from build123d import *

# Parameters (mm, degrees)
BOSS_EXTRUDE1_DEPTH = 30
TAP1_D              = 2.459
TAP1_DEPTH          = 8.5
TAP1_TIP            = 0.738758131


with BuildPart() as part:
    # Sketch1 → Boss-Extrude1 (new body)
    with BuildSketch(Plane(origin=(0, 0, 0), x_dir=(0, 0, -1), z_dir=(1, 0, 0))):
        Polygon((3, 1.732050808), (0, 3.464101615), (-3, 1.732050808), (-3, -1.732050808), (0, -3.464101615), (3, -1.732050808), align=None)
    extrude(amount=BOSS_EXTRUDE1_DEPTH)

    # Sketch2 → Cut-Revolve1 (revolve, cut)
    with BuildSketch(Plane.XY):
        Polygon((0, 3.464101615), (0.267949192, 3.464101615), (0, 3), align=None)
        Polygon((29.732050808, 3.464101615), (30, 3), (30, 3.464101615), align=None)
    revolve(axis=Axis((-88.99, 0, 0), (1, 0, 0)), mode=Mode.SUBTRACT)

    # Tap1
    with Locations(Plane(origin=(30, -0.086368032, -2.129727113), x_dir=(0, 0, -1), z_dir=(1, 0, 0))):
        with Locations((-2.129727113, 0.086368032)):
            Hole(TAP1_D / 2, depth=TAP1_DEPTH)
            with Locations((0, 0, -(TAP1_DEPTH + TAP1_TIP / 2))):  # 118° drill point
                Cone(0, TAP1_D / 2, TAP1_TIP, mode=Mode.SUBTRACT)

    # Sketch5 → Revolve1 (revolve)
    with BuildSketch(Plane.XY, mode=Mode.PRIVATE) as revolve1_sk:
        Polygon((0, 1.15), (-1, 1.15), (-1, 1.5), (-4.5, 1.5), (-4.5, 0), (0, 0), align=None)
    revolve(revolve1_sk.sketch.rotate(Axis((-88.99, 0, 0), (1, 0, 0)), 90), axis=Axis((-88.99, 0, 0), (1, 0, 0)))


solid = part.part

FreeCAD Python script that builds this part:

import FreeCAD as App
import Part
import Sketcher

V = App.Vector
Q = App.Units.Quantity

doc = App.newDocument("Part")
body = doc.addObject("PartDesign::Body", "Body")

sketch1 = doc.addObject("Sketcher::SketchObject", "Sketch")
body.addObject(sketch1)
sketch1.AttachmentSupport = (doc.YZ_Plane, [""])
sketch1.MapMode = "FlatFace"
sketch1.addGeometry([
    Part.LineSegment(V(1.7, -3, 0), V(3.5, 0, 0)),
    Part.LineSegment(V(3.5, 0, 0), V(1.7, 3, 0)),
    Part.LineSegment(V(1.7, 3, 0), V(-1.7, 3, 0)),
    Part.LineSegment(V(-1.7, 3, 0), V(-3.5, 0, 0)),
    Part.LineSegment(V(-3.5, 0, 0), V(-1.7, -3, 0)),
    Part.LineSegment(V(-1.7, -3, 0), V(1.7, -3, 0)),
], False)
sketch1.addConstraint([
    Sketcher.Constraint("Coincident", 0, 2, 1, 1),
    Sketcher.Constraint("Coincident", 1, 2, 2, 1),
    Sketcher.Constraint("Coincident", 2, 2, 3, 1),
    Sketcher.Constraint("Coincident", 3, 2, 4, 1),
    Sketcher.Constraint("Coincident", 4, 2, 5, 1),
    Sketcher.Constraint("Coincident", 5, 2, 0, 1),
    Sketcher.Constraint("Horizontal", 2),
    Sketcher.Constraint("Horizontal", 5),
    Sketcher.Constraint("Symmetric", 0, 2, 3, 2, -1, 1),
    Sketcher.Constraint("Symmetric", 1, 2, 4, 2, -1, 1),
    Sketcher.Constraint("PointOnObject", 0, 2, -1),
    Sketcher.Constraint("Parallel", 0, 3),
    Sketcher.Constraint("Vertical", 2, 2, 4, 2),
    Sketcher.Constraint("Angle", 0, Q("60 deg")),
    Sketcher.Constraint("DistanceY", -1, 1, 1, 2, Q("3 mm")),
    Sketcher.Constraint("DistanceX", 2, 2, 2, 1, Q("3.464102 mm")),
])
pad1 = doc.addObject("PartDesign::Pad", "Pad")
body.addObject(pad1)
pad1.Profile = sketch1
pad1.Length = 30

sketch2 = doc.addObject("Sketcher::SketchObject", "Sketch001")
body.addObject(sketch2)
sketch2.AttachmentSupport = (doc.XY_Plane, [""])
sketch2.MapMode = "FlatFace"
sketch2.addGeometry([
    Part.LineSegment(V(0.27, 3.46, 0), V(0, 3.46, 0)),
    Part.LineSegment(V(0, 3.46, 0), V(0, 3, 0)),
    Part.LineSegment(V(0, 3, 0), V(0.27, 3.46, 0)),
    Part.LineSegment(V(29.73, 3.46, 0), V(30, 3, 0)),
    Part.LineSegment(V(30, 3, 0), V(30, 3.46, 0)),
    Part.LineSegment(V(30, 3.46, 0), V(29.73, 3.46, 0)),
], False)
sketch2.addConstraint([
    Sketcher.Constraint("Coincident", 0, 2, 1, 1),
    Sketcher.Constraint("Coincident", 1, 2, 2, 1),
    Sketcher.Constraint("Coincident", 2, 2, 0, 1),
    Sketcher.Constraint("Coincident", 3, 2, 4, 1),
    Sketcher.Constraint("Coincident", 4, 2, 5, 1),
    Sketcher.Constraint("Coincident", 5, 2, 3, 1),
    Sketcher.Constraint("Horizontal", 0),
    Sketcher.Constraint("Vertical", 1),
    Sketcher.Constraint("Vertical", 4),
    Sketcher.Constraint("Horizontal", 5),
    Sketcher.Constraint("PointOnObject", 0, 2, -2),
    Sketcher.Constraint("Horizontal", 1, 2, 3, 2),
    Sketcher.Constraint("Horizontal", 2, 2, 4, 2),
    Sketcher.Constraint("Equal", 0, 5),
    Sketcher.Constraint("Angle", 2, Q("60 deg")),
    Sketcher.Constraint("DistanceY", -1, 1, 1, 2, Q("3 mm")),
    Sketcher.Constraint("DistanceX", -1, 1, 3, 2, Q("30 mm")),
    Sketcher.Constraint("DistanceY", 1, 2, 1, 1, Q("0.464102 mm")),
])
groove = doc.addObject("PartDesign::Groove", "Groove")
body.addObject(groove)
groove.Profile = sketch2
groove.ReferenceAxis = (sketch2, ["H_Axis"])
groove.Angle = 360

sketch3 = doc.addObject("Sketcher::SketchObject", "Sketch002")
body.addObject(sketch3)
sketch3.AttachmentSupport = (doc.YZ_Plane, [""])
sketch3.MapMode = "FlatFace"
sketch3.AttachmentOffset = App.Placement(V(0, 0, 30), App.Rotation())
sketch3.addGeometry(Part.Circle(V(0, 0, 0), V(0, 0, 1), 1.2), False)
sketch3.addConstraint([
    Sketcher.Constraint("Coincident", 0, 3, -1, 1),
    Sketcher.Constraint("Diameter", 0, Q("2.459 mm")),
])
doc.recompute()
hole = doc.addObject("PartDesign::Hole", "Hole")
body.addObject(hole)
hole.Profile = sketch3
hole.ThreadType = "None"
hole.Diameter = 2.459
hole.DepthType = "Dimension"
hole.Depth = 8.5
hole.DrillPoint = "Angled"
hole.DrillPointAngle = 118

sketch4 = doc.addObject("Sketcher::SketchObject", "Sketch003")
body.addObject(sketch4)
sketch4.AttachmentSupport = (doc.XY_Plane, [""])
sketch4.MapMode = "FlatFace"
sketch4.addGeometry([
    Part.LineSegment(V(0, 1.15, 0), V(-1, 1.15, 0)),
    Part.LineSegment(V(-1, 1.15, 0), V(-1, 1.5, 0)),
    Part.LineSegment(V(-1, 1.5, 0), V(-4.5, 1.5, 0)),
    Part.LineSegment(V(-4.5, 1.5, 0), V(-4.5, 0, 0)),
    Part.LineSegment(V(-4.5, 0, 0), V(0, 0, 0)),
    Part.LineSegment(V(0, 0, 0), V(0, 1.15, 0)),
], False)
sketch4.addConstraint([
    Sketcher.Constraint("Coincident", 0, 2, 1, 1),
    Sketcher.Constraint("Coincident", 1, 2, 2, 1),
    Sketcher.Constraint("Coincident", 2, 2, 3, 1),
    Sketcher.Constraint("Coincident", 3, 2, 4, 1),
    Sketcher.Constraint("Coincident", 4, 2, 5, 1),
    Sketcher.Constraint("Coincident", 5, 2, 0, 1),
    Sketcher.Constraint("Horizontal", 0),
    Sketcher.Constraint("Vertical", 1),
    Sketcher.Constraint("Horizontal", 2),
    Sketcher.Constraint("Vertical", 3),
    Sketcher.Constraint("Horizontal", 4),
    Sketcher.Constraint("Vertical", 5),
    Sketcher.Constraint("Coincident", 4, 2, -1, 1),
    Sketcher.Constraint("DistanceX", 0, 2, 0, 1, Q("1 mm")),
    Sketcher.Constraint("DistanceX", 2, 2, 2, 1, Q("3.5 mm")),
    Sketcher.Constraint("DistanceY", 3, 2, 3, 1, Q("1.5 mm")),
    Sketcher.Constraint("DistanceY", 1, 1, 1, 2, Q("0.35 mm")),
])
revolution = doc.addObject("PartDesign::Revolution", "Revolution")
body.addObject(revolution)
revolution.Profile = sketch4
revolution.ReferenceAxis = (sketch4, ["H_Axis"])
revolution.Angle = 360

doc.recompute()
